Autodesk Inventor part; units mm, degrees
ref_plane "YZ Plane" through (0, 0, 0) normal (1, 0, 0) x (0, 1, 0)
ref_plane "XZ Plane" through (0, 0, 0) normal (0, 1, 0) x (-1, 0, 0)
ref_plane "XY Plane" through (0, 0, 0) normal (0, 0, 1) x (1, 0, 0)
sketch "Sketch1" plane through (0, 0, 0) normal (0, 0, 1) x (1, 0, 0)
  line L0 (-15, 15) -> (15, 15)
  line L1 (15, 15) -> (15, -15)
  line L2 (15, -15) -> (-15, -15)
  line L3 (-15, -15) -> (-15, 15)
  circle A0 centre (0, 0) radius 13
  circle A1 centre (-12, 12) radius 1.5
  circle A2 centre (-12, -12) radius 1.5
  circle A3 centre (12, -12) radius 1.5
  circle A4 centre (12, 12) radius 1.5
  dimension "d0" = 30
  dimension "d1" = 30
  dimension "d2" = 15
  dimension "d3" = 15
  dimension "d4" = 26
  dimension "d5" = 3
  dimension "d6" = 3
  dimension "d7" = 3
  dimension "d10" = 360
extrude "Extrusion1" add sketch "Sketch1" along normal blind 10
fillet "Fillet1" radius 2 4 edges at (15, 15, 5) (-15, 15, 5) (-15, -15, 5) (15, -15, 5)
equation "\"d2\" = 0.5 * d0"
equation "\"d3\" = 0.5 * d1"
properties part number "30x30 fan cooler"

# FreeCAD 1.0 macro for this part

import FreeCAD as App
import Part
import Sketcher

V = App.Vector


def edges_at(feature, points):
    """Names of the edges that pass closest to the given points."""
    edges = feature.Shape.Edges
    near = lambda p: min(range(len(edges)), key=lambda i: edges[i].distToShape(Part.Vertex(*p))[0])
    return sorted({f"Edge{near(p) + 1}" for p in points})


def add_polygon(sketch, points):
    """Adds a closed chain of lines whose ends are joined by coincident constraints."""
    first, n = sketch.GeometryCount, len(points)
    for a, b in zip(points, points[1:] + points[:1]):
        sketch.addGeometry(Part.LineSegment(App.Vector(*a, 0), App.Vector(*b, 0)), False)
    for i in range(n):
        sketch.addConstraint(Sketcher.Constraint("Coincident", first + i, 2, first + (i + 1) % n, 1))

doc = App.newDocument("Part")
body = doc.addObject("PartDesign::Body", "Body")

sketch1 = body.newObject("Sketcher::SketchObject", "Sketch")
sketch1.AttachmentSupport = (doc.getObject("XY_Plane"), [""])
sketch1.MapMode = "FlatFace"
add_polygon(sketch1, [(15, 15), (-15, 15), (-15, -15), (15, -15)])
sketch1.addGeometry(Part.Circle(V(-12, -12, 0), V(0, 0, 1), 1.5), False)
sketch1.addGeometry(Part.Circle(V(12, -12, 0), V(0, 0, 1), 1.5), False)
sketch1.addGeometry(Part.Circle(V(-12, 12, 0), V(0, 0, 1), 1.5), False)
sketch1.addGeometry(Part.Circle(V(0, 0, 0), V(0, 0, 1), 13), False)
sketch1.addGeometry(Part.Circle(V(12, 12, 0), V(0, 0, 1), 1.5), False)
sketch1.addConstraint([
    Sketcher.Constraint("Horizontal", 0),
    Sketcher.Constraint("Vertical", 1),
    Sketcher.Constraint("Horizontal", 2),
    Sketcher.Constraint("Vertical", 3),
    Sketcher.Constraint("Coincident", 7, 3, -1, 1),
    Sketcher.Constraint("Equal", 4, 5),
    Sketcher.Constraint("Equal", 5, 6),
    Sketcher.Constraint("Equal", 6, 8),
    Sketcher.Constraint("Symmetric", 5, 3, 6, 3, -1, 1),
    Sketcher.Constraint("Symmetric", 4, 3, 8, 3, -1, 1),
    Sketcher.Constraint("Symmetric", 0, 2, 2, 2, -1, 1),
    Sketcher.Constraint("Symmetric", 4, 3, 5, 3, -2),
    Sketcher.Constraint("Equal", 2, 1),
    Sketcher.Constraint("Diameter", 4, 3.0),
    Sketcher.Constraint("Diameter", 7, 26.0),
    Sketcher.Constraint("DistanceX", 0, 2, 0, 1, 30.0),
    Sketcher.Constraint("DistanceX", 0, 2, 6, 3, 3.0),
    Sketcher.Constraint("DistanceY", 6, 3, 0, 2, 3.0),
])
pad1 = body.newObject("PartDesign::Pad", "Pad")
pad1.Profile = sketch1
pad1.Length = 10
doc.recompute()

fillet = body.newObject("PartDesign::Fillet", "Fillet")
fillet.Base = (pad1, edges_at(pad1, [
    (15, 15, 5),
    (-15, 15, 5),
    (-15, -15, 5),
    (15, -15, 5),
]))
fillet.Radius = 2

doc.recompute()
